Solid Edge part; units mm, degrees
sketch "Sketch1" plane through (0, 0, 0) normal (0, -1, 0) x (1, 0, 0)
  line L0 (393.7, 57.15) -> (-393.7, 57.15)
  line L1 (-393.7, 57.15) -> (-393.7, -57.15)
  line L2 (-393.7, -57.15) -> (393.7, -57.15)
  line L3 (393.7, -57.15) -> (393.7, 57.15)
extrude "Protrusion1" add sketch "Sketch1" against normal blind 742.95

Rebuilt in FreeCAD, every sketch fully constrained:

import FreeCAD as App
import Part
import Sketcher
Q = App.Units.Quantity

doc = App.newDocument("Part")
body = doc.addObject("PartDesign::Body", "Body")

# Sketch on XZ plane
sketch1 = body.newObject("Sketcher::SketchObject", "Sketch")
sketch1.AttachmentSupport = (doc.getObject("XZ_Plane"), [""])
sketch1.MapMode = "FlatFace"
sketch1.addGeometry(Part.LineSegment(App.Vector(394, -57, 0), App.Vector(394, 57, 0)), False)
sketch1.addGeometry(Part.LineSegment(App.Vector(394, 57, 0), App.Vector(-394, 57, 0)), False)
sketch1.addGeometry(Part.LineSegment(App.Vector(-394, 57, 0), App.Vector(-394, -57, 0)), False)
sketch1.addGeometry(Part.LineSegment(App.Vector(-394, -57, 0), App.Vector(394, -57, 0)), False)
sketch1.addConstraint(Sketcher.Constraint("Coincident", 0, 2, 1, 1))
sketch1.addConstraint(Sketcher.Constraint("Coincident", 1, 2, 2, 1))
sketch1.addConstraint(Sketcher.Constraint("Coincident", 2, 2, 3, 1))
sketch1.addConstraint(Sketcher.Constraint("Coincident", 3, 2, 0, 1))
sketch1.addConstraint(Sketcher.Constraint("Vertical", 0))
sketch1.addConstraint(Sketcher.Constraint("Horizontal", 1))
sketch1.addConstraint(Sketcher.Constraint("Vertical", 2))
sketch1.addConstraint(Sketcher.Constraint("Horizontal", 3))
sketch1.addConstraint(Sketcher.Constraint("Symmetric", 0, 2, 2, 2, -1, 1))
sketch1.addConstraint(Sketcher.Constraint("DistanceX", 1, 2, 1, 1, Q("31 in")))
sketch1.addConstraint(Sketcher.Constraint("DistanceY", 0, 1, 0, 2, Q("4.5 in")))
pad1 = body.newObject("PartDesign::Pad", "Pad")
pad1.Profile = sketch1
pad1.Length = Q("29.25 in")
pad1.Reversed = True

doc.recompute()
